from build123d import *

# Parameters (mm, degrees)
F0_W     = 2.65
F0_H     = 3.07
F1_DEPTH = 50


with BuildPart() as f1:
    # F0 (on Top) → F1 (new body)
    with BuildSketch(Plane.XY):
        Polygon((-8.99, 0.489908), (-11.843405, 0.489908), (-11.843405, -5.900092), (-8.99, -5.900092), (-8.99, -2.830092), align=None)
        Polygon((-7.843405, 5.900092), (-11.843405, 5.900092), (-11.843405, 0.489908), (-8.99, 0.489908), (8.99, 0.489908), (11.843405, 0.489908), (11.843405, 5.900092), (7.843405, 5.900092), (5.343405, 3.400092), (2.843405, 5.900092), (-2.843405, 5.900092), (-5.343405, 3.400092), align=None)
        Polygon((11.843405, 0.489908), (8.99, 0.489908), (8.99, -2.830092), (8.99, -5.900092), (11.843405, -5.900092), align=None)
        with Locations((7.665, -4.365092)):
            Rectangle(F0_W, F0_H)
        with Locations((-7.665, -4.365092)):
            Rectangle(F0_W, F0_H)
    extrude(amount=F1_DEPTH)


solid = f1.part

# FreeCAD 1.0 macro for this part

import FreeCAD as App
import Part
import Sketcher
from FreeCAD import Vector
Q = App.Units.Quantity


def add_polygon(sketch, points):
    """Adds a closed chain of lines whose ends are joined by coincident constraints."""
    first, n = sketch.GeometryCount, len(points)
    for a, b in zip(points, points[1:] + points[:1]):
        sketch.addGeometry(Part.LineSegment(App.Vector(*a, 0), App.Vector(*b, 0)), False)
    for i in range(n):
        sketch.addConstraint(Sketcher.Constraint("Coincident", first + i, 2, first + (i + 1) % n, 1))

doc = App.newDocument("Part")
body = doc.addObject("PartDesign::Body", "Body")

sketch1 = doc.addObject("Sketcher::SketchObject", "Sketch")
body.addObject(sketch1)
sketch1.AttachmentSupport = (doc.XY_Plane, [""])
sketch1.MapMode = "FlatFace"
add_polygon(sketch1, [(-11.8, -5.9), (-6.3, -5.9), (-6.3, -2.8), (-9, -2.8), (-9, 0.5), (9, 0.5), (9, -2.8), (6.3, -2.8), (6.3, -5.9), (11.8, -5.9), (11.8, 5.9), (7.8, 5.9), (5.3, 3.4), (2.8, 5.9), (-2.8, 5.9), (-5.3, 3.4), (-7.8, 5.9), (-11.8, 5.9)])
sketch1.addConstraint([
    Sketcher.Constraint("Horizontal", 0),
    Sketcher.Constraint("Vertical", 1),
    Sketcher.Constraint("Horizontal", 2),
    Sketcher.Constraint("Vertical", 3),
    Sketcher.Constraint("Horizontal", 4),
    Sketcher.Constraint("Vertical", 5),
    Sketcher.Constraint("Horizontal", 6),
    Sketcher.Constraint("Vertical", 7),
    Sketcher.Constraint("Horizontal", 8),
    Sketcher.Constraint("Vertical", 9),
    Sketcher.Constraint("Horizontal", 10),
    Sketcher.Constraint("Horizontal", 13),
    Sketcher.Constraint("Horizontal", 16),
    Sketcher.Constraint("Vertical", 17),
    Sketcher.Constraint("Symmetric", 8, 2, 16, 2, -1, 1),
    Sketcher.Constraint("Symmetric", 2, 2, 5, 2, -2),
    Sketcher.Constraint("Symmetric", 0, 2, 7, 2, -2),
    Sketcher.Constraint("Symmetric", 11, 2, 14, 2, -2),
    Sketcher.Constraint("Symmetric", 10, 2, 15, 2, -2),
    Sketcher.Constraint("Perpendicular", 11, 12),
    Sketcher.Constraint("Perpendicular", 12, 14),
    Sketcher.Constraint("Perpendicular", 14, 15),
    Sketcher.Constraint("Horizontal", 10, 2, 12, 2),
    Sketcher.Constraint("DistanceX", 10, 2, 10, 1, Q("4 mm")),
    Sketcher.Constraint("DistanceX", 12, 2, 10, 2, Q("5 mm")),
    Sketcher.Constraint("DistanceX", 2, 2, 2, 1, Q("2.65 mm")),
    Sketcher.Constraint("DistanceX", 4, 1, 4, 2, Q("17.98 mm")),
    Sketcher.Constraint("DistanceY", 1, 1, 1, 2, Q("3.07 mm")),
    Sketcher.Constraint("DistanceY", 3, 1, 3, 2, Q("3.32 mm")),
    Sketcher.Constraint("DistanceX", 13, 2, 13, 1, Q("5.68681 mm")),
    Sketcher.Constraint("DistanceY", 9, 1, 9, 2, Q("11.800184 mm")),
])
pad1 = doc.addObject("PartDesign::Pad", "Pad")
body.addObject(pad1)
pad1.Profile = sketch1
pad1.Length = 50

doc.recompute()
